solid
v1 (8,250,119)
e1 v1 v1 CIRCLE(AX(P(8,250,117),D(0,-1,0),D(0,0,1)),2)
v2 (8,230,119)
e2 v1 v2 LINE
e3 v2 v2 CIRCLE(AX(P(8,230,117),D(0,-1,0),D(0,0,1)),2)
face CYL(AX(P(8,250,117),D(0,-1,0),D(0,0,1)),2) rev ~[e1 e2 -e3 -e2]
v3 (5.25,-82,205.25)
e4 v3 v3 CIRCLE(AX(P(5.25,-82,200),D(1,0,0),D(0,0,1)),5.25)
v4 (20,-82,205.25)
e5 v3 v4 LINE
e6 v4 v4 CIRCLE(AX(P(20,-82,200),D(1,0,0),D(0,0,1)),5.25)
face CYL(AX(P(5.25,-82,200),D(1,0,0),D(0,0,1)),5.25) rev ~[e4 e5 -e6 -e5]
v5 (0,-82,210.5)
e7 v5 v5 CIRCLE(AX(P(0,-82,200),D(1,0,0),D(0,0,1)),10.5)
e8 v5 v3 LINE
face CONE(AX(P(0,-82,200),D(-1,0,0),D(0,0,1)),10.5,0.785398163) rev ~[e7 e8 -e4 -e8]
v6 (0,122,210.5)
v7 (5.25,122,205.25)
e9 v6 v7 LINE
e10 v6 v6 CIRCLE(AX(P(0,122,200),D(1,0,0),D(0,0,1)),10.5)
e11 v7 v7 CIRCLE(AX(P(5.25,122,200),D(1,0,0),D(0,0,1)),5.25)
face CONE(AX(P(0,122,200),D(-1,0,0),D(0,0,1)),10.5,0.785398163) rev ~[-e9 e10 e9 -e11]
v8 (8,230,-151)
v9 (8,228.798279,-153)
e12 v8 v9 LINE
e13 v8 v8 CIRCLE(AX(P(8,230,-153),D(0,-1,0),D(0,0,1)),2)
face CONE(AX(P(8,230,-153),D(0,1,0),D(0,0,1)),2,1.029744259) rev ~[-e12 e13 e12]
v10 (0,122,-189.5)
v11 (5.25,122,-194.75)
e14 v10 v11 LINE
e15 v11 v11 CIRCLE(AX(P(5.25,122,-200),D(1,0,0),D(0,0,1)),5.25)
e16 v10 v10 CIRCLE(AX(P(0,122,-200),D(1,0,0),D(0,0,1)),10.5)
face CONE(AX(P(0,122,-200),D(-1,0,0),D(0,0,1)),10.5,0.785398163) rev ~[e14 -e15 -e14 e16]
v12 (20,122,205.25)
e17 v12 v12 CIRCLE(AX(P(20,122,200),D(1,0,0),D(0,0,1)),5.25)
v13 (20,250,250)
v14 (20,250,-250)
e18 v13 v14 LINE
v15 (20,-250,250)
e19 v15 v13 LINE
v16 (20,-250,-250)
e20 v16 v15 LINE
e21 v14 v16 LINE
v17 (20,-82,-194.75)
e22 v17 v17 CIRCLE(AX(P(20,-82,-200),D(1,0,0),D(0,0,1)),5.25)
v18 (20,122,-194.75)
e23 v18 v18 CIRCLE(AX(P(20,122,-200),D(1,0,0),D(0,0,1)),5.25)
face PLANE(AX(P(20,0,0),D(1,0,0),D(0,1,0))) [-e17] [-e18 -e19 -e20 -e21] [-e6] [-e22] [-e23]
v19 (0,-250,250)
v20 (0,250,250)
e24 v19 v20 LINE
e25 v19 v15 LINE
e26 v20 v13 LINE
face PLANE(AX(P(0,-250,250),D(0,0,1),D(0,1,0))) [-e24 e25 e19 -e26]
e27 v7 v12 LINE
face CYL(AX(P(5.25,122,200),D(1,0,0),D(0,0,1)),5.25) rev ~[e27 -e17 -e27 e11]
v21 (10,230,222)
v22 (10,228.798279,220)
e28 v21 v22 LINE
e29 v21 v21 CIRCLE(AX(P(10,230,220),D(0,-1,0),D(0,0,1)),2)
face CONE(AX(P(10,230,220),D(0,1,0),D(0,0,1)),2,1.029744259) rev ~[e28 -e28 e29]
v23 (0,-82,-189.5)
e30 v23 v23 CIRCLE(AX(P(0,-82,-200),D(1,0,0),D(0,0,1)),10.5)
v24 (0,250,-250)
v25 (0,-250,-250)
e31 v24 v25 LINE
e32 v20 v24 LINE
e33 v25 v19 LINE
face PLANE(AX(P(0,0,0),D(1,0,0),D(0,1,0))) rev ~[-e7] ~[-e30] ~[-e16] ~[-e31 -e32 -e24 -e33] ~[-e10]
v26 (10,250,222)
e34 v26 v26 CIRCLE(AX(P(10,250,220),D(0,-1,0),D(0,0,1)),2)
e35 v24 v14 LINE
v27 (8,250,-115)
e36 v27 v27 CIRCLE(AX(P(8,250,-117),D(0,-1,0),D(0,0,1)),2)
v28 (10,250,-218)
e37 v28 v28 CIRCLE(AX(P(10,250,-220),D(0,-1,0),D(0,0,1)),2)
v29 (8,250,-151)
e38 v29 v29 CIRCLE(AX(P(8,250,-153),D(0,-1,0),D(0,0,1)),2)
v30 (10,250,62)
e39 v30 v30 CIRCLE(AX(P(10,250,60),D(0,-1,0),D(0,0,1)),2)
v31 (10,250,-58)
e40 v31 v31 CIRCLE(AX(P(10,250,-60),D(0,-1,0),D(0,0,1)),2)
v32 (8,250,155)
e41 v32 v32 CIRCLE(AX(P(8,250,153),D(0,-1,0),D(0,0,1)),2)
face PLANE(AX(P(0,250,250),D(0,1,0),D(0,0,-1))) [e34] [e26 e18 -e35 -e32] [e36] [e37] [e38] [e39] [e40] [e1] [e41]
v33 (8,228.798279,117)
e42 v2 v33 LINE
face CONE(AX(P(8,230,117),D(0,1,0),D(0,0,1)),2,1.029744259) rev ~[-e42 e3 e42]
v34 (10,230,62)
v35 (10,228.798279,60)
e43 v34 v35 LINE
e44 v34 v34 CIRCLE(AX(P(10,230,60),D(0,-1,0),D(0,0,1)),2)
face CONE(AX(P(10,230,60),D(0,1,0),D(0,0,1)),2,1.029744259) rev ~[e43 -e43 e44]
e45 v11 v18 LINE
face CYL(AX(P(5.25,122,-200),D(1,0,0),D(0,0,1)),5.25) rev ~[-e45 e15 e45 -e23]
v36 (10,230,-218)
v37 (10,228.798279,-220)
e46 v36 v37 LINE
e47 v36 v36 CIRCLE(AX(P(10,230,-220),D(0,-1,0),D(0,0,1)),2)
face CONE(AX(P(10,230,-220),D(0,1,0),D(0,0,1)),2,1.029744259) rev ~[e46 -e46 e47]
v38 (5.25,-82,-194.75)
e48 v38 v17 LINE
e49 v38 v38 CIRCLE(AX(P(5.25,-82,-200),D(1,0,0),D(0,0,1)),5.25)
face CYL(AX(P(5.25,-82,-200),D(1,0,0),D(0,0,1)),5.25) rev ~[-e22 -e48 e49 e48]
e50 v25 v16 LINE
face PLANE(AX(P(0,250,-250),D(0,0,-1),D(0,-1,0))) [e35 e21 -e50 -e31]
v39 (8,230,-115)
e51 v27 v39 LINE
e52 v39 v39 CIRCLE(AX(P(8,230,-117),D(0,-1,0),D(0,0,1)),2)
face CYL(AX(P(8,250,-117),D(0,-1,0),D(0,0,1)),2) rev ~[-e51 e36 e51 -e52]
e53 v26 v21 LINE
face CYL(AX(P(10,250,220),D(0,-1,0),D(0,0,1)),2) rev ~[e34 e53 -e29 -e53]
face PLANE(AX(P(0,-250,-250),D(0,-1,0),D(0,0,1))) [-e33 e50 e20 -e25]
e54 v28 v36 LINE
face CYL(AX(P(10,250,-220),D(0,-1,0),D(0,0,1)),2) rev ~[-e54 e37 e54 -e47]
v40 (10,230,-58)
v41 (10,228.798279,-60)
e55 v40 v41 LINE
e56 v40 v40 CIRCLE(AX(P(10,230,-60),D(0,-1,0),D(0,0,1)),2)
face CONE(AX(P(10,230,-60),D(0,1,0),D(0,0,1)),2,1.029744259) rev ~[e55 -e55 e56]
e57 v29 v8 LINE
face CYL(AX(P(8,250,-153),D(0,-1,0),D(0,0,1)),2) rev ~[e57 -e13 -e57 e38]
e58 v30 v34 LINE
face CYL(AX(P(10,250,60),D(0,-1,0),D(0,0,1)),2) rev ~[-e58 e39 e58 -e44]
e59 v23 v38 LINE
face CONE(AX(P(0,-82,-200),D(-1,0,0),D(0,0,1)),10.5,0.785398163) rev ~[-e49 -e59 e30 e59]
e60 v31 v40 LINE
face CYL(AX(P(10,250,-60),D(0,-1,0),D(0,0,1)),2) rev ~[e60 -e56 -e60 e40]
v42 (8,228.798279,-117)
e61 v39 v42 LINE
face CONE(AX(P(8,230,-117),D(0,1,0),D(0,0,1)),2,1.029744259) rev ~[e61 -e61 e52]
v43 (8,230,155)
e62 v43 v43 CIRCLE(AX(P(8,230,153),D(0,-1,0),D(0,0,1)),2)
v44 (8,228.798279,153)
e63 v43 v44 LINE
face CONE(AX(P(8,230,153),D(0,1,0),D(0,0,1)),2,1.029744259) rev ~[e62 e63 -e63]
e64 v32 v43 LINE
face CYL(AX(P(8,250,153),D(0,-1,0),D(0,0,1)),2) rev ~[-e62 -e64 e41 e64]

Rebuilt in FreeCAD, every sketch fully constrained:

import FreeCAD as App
import Part
import Sketcher
Q = App.Units.Quantity


def add_polygon(sketch, points):
    """Adds a closed chain of lines whose ends are joined by coincident constraints."""
    first, n = sketch.GeometryCount, len(points)
    for a, b in zip(points, points[1:] + points[:1]):
        sketch.addGeometry(Part.LineSegment(App.Vector(*a, 0), App.Vector(*b, 0)), False)
    for i in range(n):
        sketch.addConstraint(Sketcher.Constraint("Coincident", first + i, 2, first + (i + 1) % n, 1))

doc = App.newDocument("Part")
body = doc.addObject("PartDesign::Body", "Body")

sketch1 = body.newObject("Sketcher::SketchObject", "Sketch")
sketch1.AttachmentSupport = (doc.getObject("YZ_Plane"), [""])
sketch1.MapMode = "FlatFace"
add_polygon(sketch1, [(250, 250), (-250, 250), (-250, -250), (250, -250)])
sketch1.addConstraint([
    Sketcher.Constraint("Horizontal", 0),
    Sketcher.Constraint("Vertical", 1),
    Sketcher.Constraint("Horizontal", 2),
    Sketcher.Constraint("Vertical", 3),
    Sketcher.Constraint("Symmetric", 0, 2, 2, 2, -1, 1),
    Sketcher.Constraint("Equal", 2, 1),
    Sketcher.Constraint("DistanceX", 0, 2, 0, 1, Q("500 mm")),
])
pad1 = body.newObject("PartDesign::Pad", "Pad")
pad1.Profile = sketch1
pad1.Length = 20

sketch2 = body.newObject("Sketcher::SketchObject", "Sketch001")
sketch2.AttachmentSupport = (doc.getObject("YZ_Plane"), [""])
sketch2.MapMode = "FlatFace"
sketch2.addGeometry([
    Part.Circle(App.Vector(-82, 200, 0), App.Vector(0, 0, 1), 5),
    Part.Circle(App.Vector(-82, -200, 0), App.Vector(0, 0, 1), 5),
    Part.Circle(App.Vector(122, 200, 0), App.Vector(0, 0, 1), 5),
    Part.Circle(App.Vector(122, -200, 0), App.Vector(0, 0, 1), 5),
], False)
sketch2.addConstraint([
    Sketcher.Constraint("Equal", 0, 1),
    Sketcher.Constraint("Equal", 1, 2),
    Sketcher.Constraint("Equal", 2, 3),
    Sketcher.Constraint("Symmetric", 0, 3, 1, 3, -1),
    Sketcher.Constraint("Symmetric", 2, 3, 3, 3, -1),
    Sketcher.Constraint("Horizontal", 0, 3, 2, 3),
    Sketcher.Constraint("Diameter", 0, Q("10.5 mm")),
    Sketcher.Constraint("DistanceX", 0, 3, -1, 1, Q("82 mm")),
    Sketcher.Constraint("DistanceY", -1, 1, 0, 3, Q("200 mm")),
    Sketcher.Constraint("DistanceX", -1, 1, 2, 3, Q("122 mm")),
])
doc.recompute()
hole = body.newObject("PartDesign::Hole", "Hole")
hole.Profile = sketch2
hole.ThreadType = "None"
hole.Diameter = 10.5
hole.DepthType = "ThroughAll"
hole.HoleCutType = "Countersink"
hole.HoleCutDiameter = 21
hole.HoleCutCountersinkAngle = 90
hole.Reversed = True

sketch3 = body.newObject("Sketcher::SketchObject", "Sketch002")
sketch3.AttachmentSupport = (doc.getObject("XZ_Plane"), [""])
sketch3.MapMode = "FlatFace"
sketch3.AttachmentOffset = App.Placement(App.Vector(0, 0, -250), App.Rotation())
sketch3.addGeometry([
    Part.Circle(App.Vector(8, 153, 0), App.Vector(0, 0, 1), 2),
    Part.Circle(App.Vector(8, 117, 0), App.Vector(0, 0, 1), 2),
    Part.Circle(App.Vector(8, -117, 0), App.Vector(0, 0, 1), 2),
    Part.Circle(App.Vector(8, -153, 0), App.Vector(0, 0, 1), 2),
], False)
sketch3.addConstraint([
    Sketcher.Constraint("Equal", 0, 1),
    Sketcher.Constraint("Equal", 1, 2),
    Sketcher.Constraint("Equal", 2, 3),
    Sketcher.Constraint("Symmetric", 1, 3, 2, 3, -1),
    Sketcher.Constraint("Symmetric", 0, 3, 3, 3, -1),
    Sketcher.Constraint("Vertical", 0, 3, 1, 3),
    Sketcher.Constraint("Diameter", 0, Q("4 mm")),
    Sketcher.Constraint("DistanceX", -1, 1, 0, 3, Q("8 mm")),
    Sketcher.Constraint("DistanceY", -1, 1, 0, 3, Q("153 mm")),
    Sketcher.Constraint("DistanceY", -1, 1, 1, 3, Q("117 mm")),
])
doc.recompute()
hole2 = body.newObject("PartDesign::Hole", "Hole001")
hole2.Profile = sketch3
hole2.ThreadType = "None"
hole2.Diameter = 4
hole2.DepthType = "Dimension"
hole2.Depth = 20
hole2.DrillPoint = "Angled"
hole2.DrillPointAngle = 118
hole2.Reversed = True

sketch4 = body.newObject("Sketcher::SketchObject", "Sketch003")
sketch4.AttachmentSupport = (doc.getObject("XZ_Plane"), [""])
sketch4.MapMode = "FlatFace"
sketch4.AttachmentOffset = App.Placement(App.Vector(0, 0, -250), App.Rotation())
sketch4.addGeometry([
    Part.Circle(App.Vector(10, 220, 0), App.Vector(0, 0, 1), 2),
    Part.Circle(App.Vector(10, 60, 0), App.Vector(0, 0, 1), 2),
    Part.Circle(App.Vector(10, -60, 0), App.Vector(0, 0, 1), 2),
    Part.Circle(App.Vector(10, -220, 0), App.Vector(0, 0, 1), 2),
], False)
sketch4.addConstraint([
    Sketcher.Constraint("Equal", 0, 1),
    Sketcher.Constraint("Equal", 1, 2),
    Sketcher.Constraint("Equal", 2, 3),
    Sketcher.Constraint("Symmetric", 1, 3, 2, 3, -1),
    Sketcher.Constraint("Symmetric", 0, 3, 3, 3, -1),
    Sketcher.Constraint("Vertical", 0, 3, 1, 3),
    Sketcher.Constraint("Diameter", 0, Q("4 mm")),
    Sketcher.Constraint("DistanceX", -1, 1, 0, 3, Q("10 mm")),
    Sketcher.Constraint("DistanceY", -1, 1, 0, 3, Q("220 mm")),
    Sketcher.Constraint("DistanceY", -1, 1, 1, 3, Q("60 mm")),
])
doc.recompute()
hole3 = body.newObject("PartDesign::Hole", "Hole002")
hole3.Profile = sketch4
hole3.ThreadType = "None"
hole3.Diameter = 4
hole3.DepthType = "Dimension"
hole3.Depth = 20
hole3.DrillPoint = "Angled"
hole3.DrillPointAngle = 118
hole3.Reversed = True

doc.recompute()
